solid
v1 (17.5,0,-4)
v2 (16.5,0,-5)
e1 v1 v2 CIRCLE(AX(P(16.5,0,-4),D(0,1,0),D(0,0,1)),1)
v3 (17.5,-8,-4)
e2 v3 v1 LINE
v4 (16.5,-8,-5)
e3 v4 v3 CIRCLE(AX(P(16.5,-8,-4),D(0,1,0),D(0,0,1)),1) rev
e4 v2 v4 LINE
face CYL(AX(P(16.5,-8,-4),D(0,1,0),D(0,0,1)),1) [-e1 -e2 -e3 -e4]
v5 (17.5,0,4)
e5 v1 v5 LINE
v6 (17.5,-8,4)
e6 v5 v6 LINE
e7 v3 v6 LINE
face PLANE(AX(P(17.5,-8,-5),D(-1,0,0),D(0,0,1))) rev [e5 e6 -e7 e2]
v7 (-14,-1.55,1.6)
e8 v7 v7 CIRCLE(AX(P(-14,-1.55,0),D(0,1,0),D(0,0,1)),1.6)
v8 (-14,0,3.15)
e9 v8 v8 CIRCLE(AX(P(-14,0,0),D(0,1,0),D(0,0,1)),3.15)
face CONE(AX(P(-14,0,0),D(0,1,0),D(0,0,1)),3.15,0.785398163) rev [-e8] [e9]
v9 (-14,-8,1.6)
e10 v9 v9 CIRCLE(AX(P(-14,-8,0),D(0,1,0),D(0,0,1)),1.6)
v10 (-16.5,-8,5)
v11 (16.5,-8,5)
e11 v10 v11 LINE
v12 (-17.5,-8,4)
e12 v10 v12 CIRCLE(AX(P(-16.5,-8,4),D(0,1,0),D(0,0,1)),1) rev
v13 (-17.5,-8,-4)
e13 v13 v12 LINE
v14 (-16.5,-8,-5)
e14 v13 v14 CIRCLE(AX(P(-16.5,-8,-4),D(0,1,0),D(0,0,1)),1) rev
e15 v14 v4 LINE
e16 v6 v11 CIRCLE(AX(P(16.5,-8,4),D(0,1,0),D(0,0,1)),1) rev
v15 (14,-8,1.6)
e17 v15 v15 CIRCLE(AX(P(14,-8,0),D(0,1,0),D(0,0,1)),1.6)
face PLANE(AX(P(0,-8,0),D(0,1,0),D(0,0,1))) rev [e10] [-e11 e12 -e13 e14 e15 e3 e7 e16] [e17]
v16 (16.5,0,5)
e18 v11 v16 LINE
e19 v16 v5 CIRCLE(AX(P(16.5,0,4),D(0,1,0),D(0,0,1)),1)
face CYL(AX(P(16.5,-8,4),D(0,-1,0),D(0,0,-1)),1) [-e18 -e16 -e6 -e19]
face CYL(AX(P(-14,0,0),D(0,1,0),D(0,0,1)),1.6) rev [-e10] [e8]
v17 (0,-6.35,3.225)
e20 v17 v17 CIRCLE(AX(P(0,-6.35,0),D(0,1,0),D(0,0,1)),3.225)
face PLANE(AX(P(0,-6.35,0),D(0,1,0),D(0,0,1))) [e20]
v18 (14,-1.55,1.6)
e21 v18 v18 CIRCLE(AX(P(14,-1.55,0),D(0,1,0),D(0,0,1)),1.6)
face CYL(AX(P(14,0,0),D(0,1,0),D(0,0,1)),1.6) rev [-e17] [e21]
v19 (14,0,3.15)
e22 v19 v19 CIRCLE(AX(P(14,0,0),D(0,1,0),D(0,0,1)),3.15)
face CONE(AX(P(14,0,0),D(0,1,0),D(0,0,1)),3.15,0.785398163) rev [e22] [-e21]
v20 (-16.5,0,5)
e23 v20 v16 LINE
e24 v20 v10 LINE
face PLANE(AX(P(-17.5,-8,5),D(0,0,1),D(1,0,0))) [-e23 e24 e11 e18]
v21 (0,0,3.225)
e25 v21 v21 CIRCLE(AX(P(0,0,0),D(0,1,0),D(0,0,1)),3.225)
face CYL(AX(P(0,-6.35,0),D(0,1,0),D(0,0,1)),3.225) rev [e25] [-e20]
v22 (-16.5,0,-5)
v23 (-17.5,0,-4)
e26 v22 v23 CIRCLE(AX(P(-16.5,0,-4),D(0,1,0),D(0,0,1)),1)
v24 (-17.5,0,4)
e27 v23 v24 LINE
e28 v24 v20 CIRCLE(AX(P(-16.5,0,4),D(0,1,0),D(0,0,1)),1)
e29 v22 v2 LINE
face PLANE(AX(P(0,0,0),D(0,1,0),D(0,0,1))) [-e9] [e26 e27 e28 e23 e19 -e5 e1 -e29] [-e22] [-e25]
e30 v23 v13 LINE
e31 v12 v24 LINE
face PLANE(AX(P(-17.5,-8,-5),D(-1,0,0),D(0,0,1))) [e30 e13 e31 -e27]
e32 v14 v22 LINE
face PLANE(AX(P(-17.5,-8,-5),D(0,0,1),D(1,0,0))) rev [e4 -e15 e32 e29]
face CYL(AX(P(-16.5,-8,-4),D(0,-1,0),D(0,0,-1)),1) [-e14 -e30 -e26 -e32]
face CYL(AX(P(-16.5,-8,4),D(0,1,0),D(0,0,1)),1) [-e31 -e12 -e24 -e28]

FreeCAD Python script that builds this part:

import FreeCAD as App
import Part
import Sketcher


def edges_at(feature, points):
    """Names of the edges that pass closest to the given points."""
    edges = feature.Shape.Edges
    near = lambda p: min(range(len(edges)), key=lambda i: edges[i].distToShape(Part.Vertex(*p))[0])
    return sorted({f"Edge{near(p) + 1}" for p in points})


def add_polygon(sketch, points):
    """Adds a closed chain of lines whose ends are joined by coincident constraints."""
    first, n = sketch.GeometryCount, len(points)
    for a, b in zip(points, points[1:] + points[:1]):
        sketch.addGeometry(Part.LineSegment(App.Vector(*a, 0), App.Vector(*b, 0)), False)
    for i in range(n):
        sketch.addConstraint(Sketcher.Constraint("Coincident", first + i, 2, first + (i + 1) % n, 1))

doc = App.newDocument("Part")
body = doc.addObject("PartDesign::Body", "Body")

sketch1 = doc.addObject("Sketcher::SketchObject", "Sketch")
body.addObject(sketch1)
sketch1.AttachmentSupport = (doc.XZ_Plane, [""])
sketch1.MapMode = "FlatFace"
add_polygon(sketch1, [(-18, -5), (-18, 5), (18, 5), (18, -5)])
sketch1.addConstraint([
    Sketcher.Constraint("Vertical", 0),
    Sketcher.Constraint("Horizontal", 1),
    Sketcher.Constraint("Vertical", 2),
    Sketcher.Constraint("Horizontal", 3),
    Sketcher.Constraint("Symmetric", 0, 2, 2, 2, -1, 1),
    Sketcher.Constraint("DistanceX", 1, 1, 1, 2, 35.0),
    Sketcher.Constraint("DistanceY", 0, 1, 0, 2, 10.0),
])
pad1 = doc.addObject("PartDesign::Pad", "Pad")
body.addObject(pad1)
pad1.Profile = sketch1
pad1.Length = 8

sketch2 = doc.addObject("Sketcher::SketchObject", "Sketch001")
body.addObject(sketch2)
sketch2.AttachmentSupport = (doc.XZ_Plane, [""])
sketch2.MapMode = "FlatFace"
sketch2.addGeometry([
    Part.Circle(App.Vector(-14, 0, 0), App.Vector(0, 0, 1), 1.6),
    Part.Circle(App.Vector(14, 0, 0), App.Vector(0, 0, 1), 1.6),
], False)
sketch2.addConstraint([
    Sketcher.Constraint("Equal", 0, 1),
    Sketcher.Constraint("Symmetric", 0, 3, 1, 3, -1, 1),
    Sketcher.Constraint("PointOnObject", 0, 3, -1),
    Sketcher.Constraint("Diameter", 0, 3.2),
    Sketcher.Constraint("DistanceX", 0, 3, -1, 1, 14.0),
])
doc.recompute()
hole = doc.addObject("PartDesign::Hole", "Hole")
body.addObject(hole)
hole.Profile = sketch2
hole.ThreadType = "None"
hole.Diameter = 3.2
hole.DepthType = "ThroughAll"
hole.HoleCutType = "Countersink"
hole.HoleCutDiameter = 6.3
hole.HoleCutCountersinkAngle = 90
hole.Reversed = True

sketch3 = doc.addObject("Sketcher::SketchObject", "Sketch002")
body.addObject(sketch3)
sketch3.AttachmentSupport = (doc.XZ_Plane, [""])
sketch3.MapMode = "FlatFace"
sketch3.addGeometry(Part.Circle(App.Vector(0, 0, 0), App.Vector(0, 0, 1), 3.2), False)
sketch3.addConstraint([
    Sketcher.Constraint("Coincident", 0, 3, -1, 1),
    Sketcher.Constraint("Diameter", 0, 6.45),
])
pocket1 = doc.addObject("PartDesign::Pocket", "Pocket")
body.addObject(pocket1)
pocket1.Profile = sketch3
pocket1.Length = 6.35
pocket1.Reversed = True
doc.recompute()

fillet = doc.addObject("PartDesign::Fillet", "Fillet")
body.addObject(fillet)
fillet.Base = (pocket1, edges_at(pocket1, [
    (-17.5, -4, -5),
    (17.5, -4, -5),
    (17.5, -4, 5),
    (-17.5, -4, 5),
]))
fillet.Radius = 1

doc.recompute()
